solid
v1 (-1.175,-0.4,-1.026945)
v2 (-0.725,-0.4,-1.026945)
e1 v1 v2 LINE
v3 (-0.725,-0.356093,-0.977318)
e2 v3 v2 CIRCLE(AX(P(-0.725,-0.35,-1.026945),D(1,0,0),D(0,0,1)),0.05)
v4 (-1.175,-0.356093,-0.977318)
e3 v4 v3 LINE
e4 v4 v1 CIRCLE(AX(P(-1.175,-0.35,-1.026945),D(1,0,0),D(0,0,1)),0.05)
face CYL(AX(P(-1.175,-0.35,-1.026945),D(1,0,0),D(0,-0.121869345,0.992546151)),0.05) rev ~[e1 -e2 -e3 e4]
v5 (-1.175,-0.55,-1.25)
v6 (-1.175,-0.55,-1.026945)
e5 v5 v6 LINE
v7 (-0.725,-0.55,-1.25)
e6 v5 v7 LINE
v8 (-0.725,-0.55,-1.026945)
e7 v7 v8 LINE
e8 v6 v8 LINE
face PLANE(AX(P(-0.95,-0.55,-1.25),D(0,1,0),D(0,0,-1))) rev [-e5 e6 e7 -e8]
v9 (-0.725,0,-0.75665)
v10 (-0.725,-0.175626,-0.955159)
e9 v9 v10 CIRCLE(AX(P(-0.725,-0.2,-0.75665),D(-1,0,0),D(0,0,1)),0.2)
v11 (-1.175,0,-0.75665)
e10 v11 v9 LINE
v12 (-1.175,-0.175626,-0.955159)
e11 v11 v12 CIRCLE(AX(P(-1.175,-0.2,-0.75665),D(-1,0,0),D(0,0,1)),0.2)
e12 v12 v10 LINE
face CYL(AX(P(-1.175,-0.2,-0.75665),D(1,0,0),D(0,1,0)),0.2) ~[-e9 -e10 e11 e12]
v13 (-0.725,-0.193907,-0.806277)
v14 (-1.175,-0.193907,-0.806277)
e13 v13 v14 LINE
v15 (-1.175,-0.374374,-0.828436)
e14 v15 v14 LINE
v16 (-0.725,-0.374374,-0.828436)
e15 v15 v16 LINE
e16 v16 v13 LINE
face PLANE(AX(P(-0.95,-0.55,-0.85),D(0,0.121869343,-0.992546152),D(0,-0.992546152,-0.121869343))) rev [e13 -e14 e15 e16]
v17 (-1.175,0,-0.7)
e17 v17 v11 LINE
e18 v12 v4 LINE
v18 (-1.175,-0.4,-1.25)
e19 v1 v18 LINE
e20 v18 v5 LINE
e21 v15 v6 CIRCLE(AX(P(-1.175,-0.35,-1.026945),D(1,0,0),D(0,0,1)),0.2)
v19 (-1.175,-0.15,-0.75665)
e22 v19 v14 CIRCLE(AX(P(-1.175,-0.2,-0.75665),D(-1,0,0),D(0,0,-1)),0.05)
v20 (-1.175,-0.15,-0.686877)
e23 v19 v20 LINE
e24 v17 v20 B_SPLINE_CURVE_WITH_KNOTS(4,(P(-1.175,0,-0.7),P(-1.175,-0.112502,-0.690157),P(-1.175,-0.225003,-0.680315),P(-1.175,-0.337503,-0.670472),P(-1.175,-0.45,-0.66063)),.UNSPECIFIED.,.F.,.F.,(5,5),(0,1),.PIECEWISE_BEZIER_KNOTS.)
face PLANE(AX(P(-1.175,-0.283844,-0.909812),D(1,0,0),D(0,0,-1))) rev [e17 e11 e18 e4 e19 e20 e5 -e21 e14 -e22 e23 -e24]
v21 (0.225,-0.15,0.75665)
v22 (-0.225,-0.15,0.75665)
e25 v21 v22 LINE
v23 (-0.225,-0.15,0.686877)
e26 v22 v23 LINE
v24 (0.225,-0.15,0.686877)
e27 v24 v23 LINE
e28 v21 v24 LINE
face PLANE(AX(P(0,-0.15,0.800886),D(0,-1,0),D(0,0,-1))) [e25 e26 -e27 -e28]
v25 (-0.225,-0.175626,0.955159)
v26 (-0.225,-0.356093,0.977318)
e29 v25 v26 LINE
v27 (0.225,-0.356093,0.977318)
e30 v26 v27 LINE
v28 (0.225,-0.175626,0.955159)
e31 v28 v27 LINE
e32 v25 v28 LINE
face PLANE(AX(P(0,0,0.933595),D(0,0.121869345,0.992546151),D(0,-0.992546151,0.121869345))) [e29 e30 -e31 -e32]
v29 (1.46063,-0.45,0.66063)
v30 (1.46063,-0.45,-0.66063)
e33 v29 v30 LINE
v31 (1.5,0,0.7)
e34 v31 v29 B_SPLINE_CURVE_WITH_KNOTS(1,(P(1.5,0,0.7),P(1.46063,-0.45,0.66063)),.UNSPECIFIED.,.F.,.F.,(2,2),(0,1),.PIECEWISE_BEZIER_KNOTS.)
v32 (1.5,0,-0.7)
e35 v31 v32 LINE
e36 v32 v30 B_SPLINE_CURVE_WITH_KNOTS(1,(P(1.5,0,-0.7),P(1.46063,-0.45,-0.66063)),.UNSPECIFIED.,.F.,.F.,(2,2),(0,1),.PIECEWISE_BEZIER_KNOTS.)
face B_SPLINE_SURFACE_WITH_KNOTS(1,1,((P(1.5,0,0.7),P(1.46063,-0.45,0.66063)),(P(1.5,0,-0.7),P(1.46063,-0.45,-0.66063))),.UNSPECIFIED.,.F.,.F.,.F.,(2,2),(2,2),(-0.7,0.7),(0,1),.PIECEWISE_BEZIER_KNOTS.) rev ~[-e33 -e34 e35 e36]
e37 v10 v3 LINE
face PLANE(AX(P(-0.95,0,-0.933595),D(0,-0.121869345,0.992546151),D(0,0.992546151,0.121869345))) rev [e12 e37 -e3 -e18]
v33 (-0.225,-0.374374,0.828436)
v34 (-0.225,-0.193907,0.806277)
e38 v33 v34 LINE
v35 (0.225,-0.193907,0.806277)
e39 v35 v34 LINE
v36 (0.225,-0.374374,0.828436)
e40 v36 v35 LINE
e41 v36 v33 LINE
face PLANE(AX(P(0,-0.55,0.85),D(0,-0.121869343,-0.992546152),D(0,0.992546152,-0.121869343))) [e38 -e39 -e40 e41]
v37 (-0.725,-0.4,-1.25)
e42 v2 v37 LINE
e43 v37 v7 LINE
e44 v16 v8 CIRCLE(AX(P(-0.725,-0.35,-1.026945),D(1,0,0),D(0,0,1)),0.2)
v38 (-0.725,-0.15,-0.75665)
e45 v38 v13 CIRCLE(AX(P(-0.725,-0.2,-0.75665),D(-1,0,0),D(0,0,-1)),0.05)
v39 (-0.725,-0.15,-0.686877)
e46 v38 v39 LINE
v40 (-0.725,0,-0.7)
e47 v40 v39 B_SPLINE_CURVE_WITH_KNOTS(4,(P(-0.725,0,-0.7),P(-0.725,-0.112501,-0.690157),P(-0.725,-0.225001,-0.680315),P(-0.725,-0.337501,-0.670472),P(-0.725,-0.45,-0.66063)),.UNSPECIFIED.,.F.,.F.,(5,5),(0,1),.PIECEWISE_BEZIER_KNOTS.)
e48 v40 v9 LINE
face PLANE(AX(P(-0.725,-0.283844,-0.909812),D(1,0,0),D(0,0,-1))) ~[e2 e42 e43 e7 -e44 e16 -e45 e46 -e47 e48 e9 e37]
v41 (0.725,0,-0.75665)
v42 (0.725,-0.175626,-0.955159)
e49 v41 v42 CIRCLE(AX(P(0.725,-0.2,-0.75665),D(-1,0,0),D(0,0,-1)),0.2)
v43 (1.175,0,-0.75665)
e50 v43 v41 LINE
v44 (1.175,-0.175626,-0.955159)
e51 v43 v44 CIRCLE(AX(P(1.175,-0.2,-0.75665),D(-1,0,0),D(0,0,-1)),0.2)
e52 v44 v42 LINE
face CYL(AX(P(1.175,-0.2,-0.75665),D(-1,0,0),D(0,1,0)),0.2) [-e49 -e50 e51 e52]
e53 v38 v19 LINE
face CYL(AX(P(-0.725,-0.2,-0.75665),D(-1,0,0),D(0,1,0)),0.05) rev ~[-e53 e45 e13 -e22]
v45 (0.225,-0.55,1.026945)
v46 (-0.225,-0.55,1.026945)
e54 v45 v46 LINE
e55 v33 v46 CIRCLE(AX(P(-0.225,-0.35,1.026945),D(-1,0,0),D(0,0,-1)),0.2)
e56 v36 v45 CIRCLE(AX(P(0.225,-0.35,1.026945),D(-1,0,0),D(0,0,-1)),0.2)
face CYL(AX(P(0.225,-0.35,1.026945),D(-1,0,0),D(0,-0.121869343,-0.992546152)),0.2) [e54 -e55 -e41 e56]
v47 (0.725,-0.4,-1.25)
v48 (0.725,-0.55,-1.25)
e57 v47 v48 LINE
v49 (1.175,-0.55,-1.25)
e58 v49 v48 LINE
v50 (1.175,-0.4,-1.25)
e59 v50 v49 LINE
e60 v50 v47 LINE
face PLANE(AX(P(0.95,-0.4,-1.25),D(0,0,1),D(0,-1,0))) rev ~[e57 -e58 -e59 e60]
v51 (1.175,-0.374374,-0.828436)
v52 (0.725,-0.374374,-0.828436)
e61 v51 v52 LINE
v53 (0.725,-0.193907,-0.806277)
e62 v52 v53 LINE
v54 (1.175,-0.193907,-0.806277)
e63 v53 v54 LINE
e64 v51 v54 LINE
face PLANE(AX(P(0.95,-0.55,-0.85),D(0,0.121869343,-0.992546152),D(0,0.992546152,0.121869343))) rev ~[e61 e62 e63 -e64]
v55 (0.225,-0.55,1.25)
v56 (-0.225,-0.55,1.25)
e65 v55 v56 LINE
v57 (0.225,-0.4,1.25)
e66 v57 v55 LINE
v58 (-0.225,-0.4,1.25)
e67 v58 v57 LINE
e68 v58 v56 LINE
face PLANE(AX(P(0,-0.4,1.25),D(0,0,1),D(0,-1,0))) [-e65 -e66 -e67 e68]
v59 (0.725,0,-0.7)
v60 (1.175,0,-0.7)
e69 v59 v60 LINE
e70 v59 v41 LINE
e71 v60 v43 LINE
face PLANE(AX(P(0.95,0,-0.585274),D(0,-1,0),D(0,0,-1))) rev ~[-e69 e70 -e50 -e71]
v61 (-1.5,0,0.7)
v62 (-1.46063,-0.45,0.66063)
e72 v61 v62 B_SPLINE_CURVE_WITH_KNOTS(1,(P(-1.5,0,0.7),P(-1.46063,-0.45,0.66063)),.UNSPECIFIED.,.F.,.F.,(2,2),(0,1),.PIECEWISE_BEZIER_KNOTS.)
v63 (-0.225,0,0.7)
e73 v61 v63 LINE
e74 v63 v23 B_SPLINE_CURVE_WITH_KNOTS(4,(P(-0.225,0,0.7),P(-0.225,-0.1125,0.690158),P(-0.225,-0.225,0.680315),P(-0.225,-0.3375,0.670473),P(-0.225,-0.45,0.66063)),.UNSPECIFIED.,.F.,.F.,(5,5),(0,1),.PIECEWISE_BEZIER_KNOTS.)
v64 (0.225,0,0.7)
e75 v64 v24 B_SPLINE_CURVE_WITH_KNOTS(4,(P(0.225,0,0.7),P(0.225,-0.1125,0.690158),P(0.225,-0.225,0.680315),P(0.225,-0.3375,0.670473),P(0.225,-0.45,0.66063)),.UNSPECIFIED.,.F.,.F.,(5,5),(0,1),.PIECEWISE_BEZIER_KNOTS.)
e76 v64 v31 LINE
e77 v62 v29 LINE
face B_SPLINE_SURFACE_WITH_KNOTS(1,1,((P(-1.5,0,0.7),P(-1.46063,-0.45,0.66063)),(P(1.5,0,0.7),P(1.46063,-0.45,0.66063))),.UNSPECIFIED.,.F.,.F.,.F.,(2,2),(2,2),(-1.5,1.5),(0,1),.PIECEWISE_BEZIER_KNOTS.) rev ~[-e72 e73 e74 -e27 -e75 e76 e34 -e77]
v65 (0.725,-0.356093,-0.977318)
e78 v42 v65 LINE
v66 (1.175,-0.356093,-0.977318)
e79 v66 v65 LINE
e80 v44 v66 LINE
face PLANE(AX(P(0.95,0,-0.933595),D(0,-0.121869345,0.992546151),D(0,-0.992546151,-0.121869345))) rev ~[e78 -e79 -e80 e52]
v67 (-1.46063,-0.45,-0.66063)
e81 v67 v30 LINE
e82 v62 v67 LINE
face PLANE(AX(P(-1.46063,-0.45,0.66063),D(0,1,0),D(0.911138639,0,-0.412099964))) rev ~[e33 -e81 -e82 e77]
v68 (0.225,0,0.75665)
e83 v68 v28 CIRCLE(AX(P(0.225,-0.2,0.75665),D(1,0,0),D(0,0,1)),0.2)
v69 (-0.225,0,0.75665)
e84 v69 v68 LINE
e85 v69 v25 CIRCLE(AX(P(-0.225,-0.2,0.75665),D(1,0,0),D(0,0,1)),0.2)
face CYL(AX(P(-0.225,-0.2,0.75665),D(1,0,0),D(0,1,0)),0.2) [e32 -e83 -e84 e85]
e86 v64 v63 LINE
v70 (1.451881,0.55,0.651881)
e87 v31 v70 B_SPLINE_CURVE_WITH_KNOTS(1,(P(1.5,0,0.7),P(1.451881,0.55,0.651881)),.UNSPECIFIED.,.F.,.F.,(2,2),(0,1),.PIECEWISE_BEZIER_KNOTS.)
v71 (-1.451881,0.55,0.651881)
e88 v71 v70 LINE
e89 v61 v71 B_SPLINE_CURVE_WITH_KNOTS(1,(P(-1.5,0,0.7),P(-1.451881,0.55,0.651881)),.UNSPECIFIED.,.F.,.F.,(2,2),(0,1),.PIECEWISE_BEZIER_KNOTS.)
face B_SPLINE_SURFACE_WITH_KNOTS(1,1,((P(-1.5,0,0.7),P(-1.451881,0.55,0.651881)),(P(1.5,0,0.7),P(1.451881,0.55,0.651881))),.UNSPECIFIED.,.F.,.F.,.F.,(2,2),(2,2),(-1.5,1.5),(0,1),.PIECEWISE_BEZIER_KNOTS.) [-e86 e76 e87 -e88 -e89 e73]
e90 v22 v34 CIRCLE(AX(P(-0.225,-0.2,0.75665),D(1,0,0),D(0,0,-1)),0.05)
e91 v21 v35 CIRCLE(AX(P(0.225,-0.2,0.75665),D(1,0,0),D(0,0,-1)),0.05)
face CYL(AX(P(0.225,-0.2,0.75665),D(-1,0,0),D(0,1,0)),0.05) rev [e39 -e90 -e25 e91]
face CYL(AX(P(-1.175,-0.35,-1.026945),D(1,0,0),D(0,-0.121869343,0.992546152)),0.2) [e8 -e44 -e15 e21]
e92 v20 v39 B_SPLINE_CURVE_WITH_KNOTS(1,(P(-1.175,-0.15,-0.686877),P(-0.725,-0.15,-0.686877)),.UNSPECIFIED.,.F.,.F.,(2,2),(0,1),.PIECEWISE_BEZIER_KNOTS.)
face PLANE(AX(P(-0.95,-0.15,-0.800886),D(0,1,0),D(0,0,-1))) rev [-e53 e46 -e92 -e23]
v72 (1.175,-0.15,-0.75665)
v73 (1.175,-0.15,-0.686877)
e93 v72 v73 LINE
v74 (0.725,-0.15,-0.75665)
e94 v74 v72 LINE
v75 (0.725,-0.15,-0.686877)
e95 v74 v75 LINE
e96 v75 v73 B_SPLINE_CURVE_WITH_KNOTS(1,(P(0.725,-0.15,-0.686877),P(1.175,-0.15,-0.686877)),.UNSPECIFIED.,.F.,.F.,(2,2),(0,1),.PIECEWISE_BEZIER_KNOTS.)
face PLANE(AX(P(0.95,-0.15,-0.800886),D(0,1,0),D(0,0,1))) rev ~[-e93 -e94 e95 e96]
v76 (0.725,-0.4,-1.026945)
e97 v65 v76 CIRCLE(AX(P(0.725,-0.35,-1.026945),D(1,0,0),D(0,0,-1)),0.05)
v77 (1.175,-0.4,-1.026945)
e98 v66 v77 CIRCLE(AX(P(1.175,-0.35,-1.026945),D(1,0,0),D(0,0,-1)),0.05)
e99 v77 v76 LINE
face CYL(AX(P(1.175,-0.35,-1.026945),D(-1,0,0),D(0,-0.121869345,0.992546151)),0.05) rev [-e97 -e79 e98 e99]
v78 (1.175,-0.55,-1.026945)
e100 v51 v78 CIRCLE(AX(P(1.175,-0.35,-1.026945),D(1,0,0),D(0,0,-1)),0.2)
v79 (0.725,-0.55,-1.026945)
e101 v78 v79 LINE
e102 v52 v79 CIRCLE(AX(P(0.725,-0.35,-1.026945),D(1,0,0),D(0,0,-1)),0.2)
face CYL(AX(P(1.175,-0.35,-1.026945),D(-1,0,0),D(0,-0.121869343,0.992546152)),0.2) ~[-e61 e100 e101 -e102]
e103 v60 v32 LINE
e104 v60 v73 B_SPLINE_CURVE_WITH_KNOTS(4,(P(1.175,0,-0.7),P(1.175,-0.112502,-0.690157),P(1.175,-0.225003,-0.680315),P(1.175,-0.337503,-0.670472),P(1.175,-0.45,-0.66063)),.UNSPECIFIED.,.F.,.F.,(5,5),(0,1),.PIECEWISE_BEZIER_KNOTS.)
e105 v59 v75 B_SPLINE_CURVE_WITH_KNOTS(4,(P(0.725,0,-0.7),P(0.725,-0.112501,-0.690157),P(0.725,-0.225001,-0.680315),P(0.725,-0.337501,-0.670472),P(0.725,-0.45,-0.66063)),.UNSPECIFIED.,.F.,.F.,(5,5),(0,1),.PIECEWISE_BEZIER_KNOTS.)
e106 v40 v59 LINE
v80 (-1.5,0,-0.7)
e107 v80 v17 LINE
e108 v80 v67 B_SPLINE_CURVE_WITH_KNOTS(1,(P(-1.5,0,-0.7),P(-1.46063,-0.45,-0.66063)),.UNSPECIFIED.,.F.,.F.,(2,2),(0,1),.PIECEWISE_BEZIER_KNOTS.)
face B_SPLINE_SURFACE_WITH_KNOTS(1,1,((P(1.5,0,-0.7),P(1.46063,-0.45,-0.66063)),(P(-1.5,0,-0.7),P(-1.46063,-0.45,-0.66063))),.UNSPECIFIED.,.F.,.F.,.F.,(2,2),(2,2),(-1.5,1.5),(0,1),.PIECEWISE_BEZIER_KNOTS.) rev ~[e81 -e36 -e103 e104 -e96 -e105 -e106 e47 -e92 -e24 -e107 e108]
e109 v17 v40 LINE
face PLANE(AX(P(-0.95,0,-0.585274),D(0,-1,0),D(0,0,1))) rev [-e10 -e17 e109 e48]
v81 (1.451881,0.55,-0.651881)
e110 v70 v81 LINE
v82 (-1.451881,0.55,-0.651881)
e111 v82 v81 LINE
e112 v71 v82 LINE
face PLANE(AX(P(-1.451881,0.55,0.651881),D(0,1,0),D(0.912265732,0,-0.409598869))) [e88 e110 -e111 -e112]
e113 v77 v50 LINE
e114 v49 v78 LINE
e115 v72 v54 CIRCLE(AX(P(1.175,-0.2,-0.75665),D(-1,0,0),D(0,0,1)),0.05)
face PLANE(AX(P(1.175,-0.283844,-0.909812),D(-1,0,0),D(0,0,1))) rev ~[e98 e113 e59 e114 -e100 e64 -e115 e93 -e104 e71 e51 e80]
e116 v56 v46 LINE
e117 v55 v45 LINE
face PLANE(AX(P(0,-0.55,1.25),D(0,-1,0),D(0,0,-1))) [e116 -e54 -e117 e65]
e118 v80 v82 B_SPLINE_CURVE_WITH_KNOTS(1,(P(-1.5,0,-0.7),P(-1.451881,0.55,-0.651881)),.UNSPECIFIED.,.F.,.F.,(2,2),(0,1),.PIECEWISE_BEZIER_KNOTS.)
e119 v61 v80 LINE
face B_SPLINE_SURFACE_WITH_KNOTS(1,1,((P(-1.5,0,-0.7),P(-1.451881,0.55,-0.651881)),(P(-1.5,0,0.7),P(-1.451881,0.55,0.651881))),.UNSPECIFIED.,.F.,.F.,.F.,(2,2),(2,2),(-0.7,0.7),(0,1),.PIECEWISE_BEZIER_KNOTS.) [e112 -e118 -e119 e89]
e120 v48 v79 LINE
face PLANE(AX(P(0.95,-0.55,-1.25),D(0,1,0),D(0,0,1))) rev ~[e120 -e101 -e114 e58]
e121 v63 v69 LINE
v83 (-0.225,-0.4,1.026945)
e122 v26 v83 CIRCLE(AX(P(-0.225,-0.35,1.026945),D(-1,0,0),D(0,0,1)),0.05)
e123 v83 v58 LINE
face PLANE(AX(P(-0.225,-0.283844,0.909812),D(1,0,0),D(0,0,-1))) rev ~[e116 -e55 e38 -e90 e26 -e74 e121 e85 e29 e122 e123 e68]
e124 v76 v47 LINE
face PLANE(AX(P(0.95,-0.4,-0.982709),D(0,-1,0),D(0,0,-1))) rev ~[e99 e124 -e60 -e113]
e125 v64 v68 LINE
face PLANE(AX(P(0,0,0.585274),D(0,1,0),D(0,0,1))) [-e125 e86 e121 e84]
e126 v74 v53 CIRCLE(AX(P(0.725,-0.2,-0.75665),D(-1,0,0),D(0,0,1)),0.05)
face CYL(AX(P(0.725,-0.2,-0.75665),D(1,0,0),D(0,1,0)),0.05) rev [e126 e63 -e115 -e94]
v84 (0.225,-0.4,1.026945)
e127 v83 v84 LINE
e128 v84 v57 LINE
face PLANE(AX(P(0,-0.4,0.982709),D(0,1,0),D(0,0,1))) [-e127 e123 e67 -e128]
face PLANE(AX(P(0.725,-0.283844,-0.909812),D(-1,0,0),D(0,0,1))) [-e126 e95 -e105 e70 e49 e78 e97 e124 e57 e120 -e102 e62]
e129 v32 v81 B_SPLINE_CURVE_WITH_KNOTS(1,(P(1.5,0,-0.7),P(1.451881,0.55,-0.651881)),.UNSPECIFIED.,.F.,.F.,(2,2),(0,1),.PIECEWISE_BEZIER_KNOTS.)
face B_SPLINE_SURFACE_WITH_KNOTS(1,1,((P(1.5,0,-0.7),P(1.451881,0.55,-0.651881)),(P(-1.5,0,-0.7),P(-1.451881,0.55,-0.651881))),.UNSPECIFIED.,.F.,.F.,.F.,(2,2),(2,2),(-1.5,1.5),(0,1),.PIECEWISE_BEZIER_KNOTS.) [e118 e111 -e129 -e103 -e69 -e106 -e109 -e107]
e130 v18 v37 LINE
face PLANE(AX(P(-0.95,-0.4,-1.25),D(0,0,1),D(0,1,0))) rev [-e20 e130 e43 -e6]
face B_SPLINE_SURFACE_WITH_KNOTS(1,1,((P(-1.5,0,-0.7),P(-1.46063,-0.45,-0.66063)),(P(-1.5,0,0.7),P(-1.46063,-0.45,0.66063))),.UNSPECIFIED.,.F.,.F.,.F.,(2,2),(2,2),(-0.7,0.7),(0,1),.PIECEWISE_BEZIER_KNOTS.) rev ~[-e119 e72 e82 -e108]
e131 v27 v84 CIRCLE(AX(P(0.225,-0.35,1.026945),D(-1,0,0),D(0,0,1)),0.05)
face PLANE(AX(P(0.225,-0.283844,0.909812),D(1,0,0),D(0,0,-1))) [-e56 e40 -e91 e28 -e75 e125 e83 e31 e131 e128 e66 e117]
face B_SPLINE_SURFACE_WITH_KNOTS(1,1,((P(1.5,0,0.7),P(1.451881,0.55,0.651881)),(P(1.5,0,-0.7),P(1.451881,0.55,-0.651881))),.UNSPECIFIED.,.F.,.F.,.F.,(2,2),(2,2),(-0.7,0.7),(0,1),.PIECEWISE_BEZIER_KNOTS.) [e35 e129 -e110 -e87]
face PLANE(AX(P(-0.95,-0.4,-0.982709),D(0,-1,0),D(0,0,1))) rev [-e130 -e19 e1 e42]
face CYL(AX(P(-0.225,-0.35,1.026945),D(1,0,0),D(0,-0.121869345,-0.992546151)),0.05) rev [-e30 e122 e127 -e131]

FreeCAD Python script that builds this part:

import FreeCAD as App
import Part
import Sketcher
from FreeCAD import Vector
Q = App.Units.Quantity


def edges_at(feature, points):
    """Names of the edges that pass closest to the given points."""
    edges = feature.Shape.Edges
    near = lambda p: min(range(len(edges)), key=lambda i: edges[i].distToShape(Part.Vertex(*p))[0])
    return sorted({f"Edge{near(p) + 1}" for p in points})


def add_polygon(sketch, points):
    """Adds a closed chain of lines whose ends are joined by coincident constraints."""
    first, n = sketch.GeometryCount, len(points)
    for a, b in zip(points, points[1:] + points[:1]):
        sketch.addGeometry(Part.LineSegment(App.Vector(*a, 0), App.Vector(*b, 0)), False)
    for i in range(n):
        sketch.addConstraint(Sketcher.Constraint("Coincident", first + i, 2, first + (i + 1) % n, 1))

doc = App.newDocument("Part")
body = doc.addObject("PartDesign::Body", "Body")

sketch1 = body.newObject("Sketcher::SketchObject", "Sketch")
sketch1.AttachmentSupport = (doc.getObject("XZ_Plane"), [""])
sketch1.MapMode = "FlatFace"
add_polygon(sketch1, [(-1.5, -0.7), (-1.5, 0.7), (1.5, 0.7), (1.5, -0.7)])
sketch1.addConstraint(Sketcher.Constraint("Vertical", 0))
sketch1.addConstraint(Sketcher.Constraint("Horizontal", 1))
sketch1.addConstraint(Sketcher.Constraint("Vertical", 2))
sketch1.addConstraint(Sketcher.Constraint("Horizontal", 3))
sketch1.addConstraint(Sketcher.Constraint("Symmetric", 0, 2, 2, 2, -1, 1))
sketch1.addConstraint(Sketcher.Constraint("DistanceX", 1, 1, 1, 2, 3.0))
sketch1.addConstraint(Sketcher.Constraint("DistanceY", 0, 1, 0, 2, 1.4))
pad1 = body.newObject("PartDesign::Pad", "Pad")
pad1.Profile = sketch1
pad1.Length = 0.55
pad1.Reversed = True
pad1.TaperAngle = -5

sketch2 = body.newObject("Sketcher::SketchObject", "Sketch001")
sketch2.AttachmentSupport = (doc.getObject("XZ_Plane"), [""])
sketch2.MapMode = "FlatFace"
add_polygon(sketch2, [(-1.5, -0.7), (-1.5, 0.7), (1.5, 0.7), (1.5, -0.7)])
sketch2.addConstraint(Sketcher.Constraint("Vertical", 0))
sketch2.addConstraint(Sketcher.Constraint("Horizontal", 1))
sketch2.addConstraint(Sketcher.Constraint("Vertical", 2))
sketch2.addConstraint(Sketcher.Constraint("Horizontal", 3))
sketch2.addConstraint(Sketcher.Constraint("Symmetric", 0, 2, 2, 2, -1, 1))
sketch2.addConstraint(Sketcher.Constraint("DistanceX", 1, 1, 1, 2, 3.0))
sketch2.addConstraint(Sketcher.Constraint("DistanceY", 0, 1, 0, 2, 1.4))
pad2 = body.newObject("PartDesign::Pad", "Pad001")
pad2.Profile = sketch2
pad2.Length = 0.45
pad2.TaperAngle = -5

sketch3 = body.newObject("Sketcher::SketchObject", "Sketch002")
sketch3.AttachmentSupport = (doc.getObject("YZ_Plane"), [""])
sketch3.MapMode = "FlatFace"
add_polygon(sketch3, [(0, 0.585274), (0, 0.933595), (-0.4, 0.982709), (-0.4, 1.25), (-0.55, 1.25), (-0.55, 0.85), (-0.15, 0.800886), (-0.15, 0.585274)])
sketch3.addConstraint(Sketcher.Constraint("Vertical", 0))
sketch3.addConstraint(Sketcher.Constraint("Vertical", 2))
sketch3.addConstraint(Sketcher.Constraint("Horizontal", 3))
sketch3.addConstraint(Sketcher.Constraint("Vertical", 4))
sketch3.addConstraint(Sketcher.Constraint("Vertical", 6))
sketch3.addConstraint(Sketcher.Constraint("Horizontal", 7))
sketch3.addConstraint(Sketcher.Constraint("PointOnObject", 0, 2, -2))
sketch3.addConstraint(Sketcher.Constraint("Parallel", 1, 5))
sketch3.addConstraint(Sketcher.Constraint("Equal", 3, 7))
sketch3.addConstraint(Sketcher.Constraint("Angle", 1, Q("173 deg")))
sketch3.addConstraint(Sketcher.Constraint("DistanceY", 4, 2, 4, 1, 0.4))
sketch3.addConstraint(Sketcher.Constraint("DistanceX", 3, 2, 3, 1, 0.15))
sketch3.addConstraint(Sketcher.Constraint("DistanceX", 1, 2, -1, 1, 0.4))
sketch3.addConstraint(Sketcher.Constraint("DistanceY", -1, 1, 2, 2, 1.25))
sketch3.addConstraint(Sketcher.Constraint("DistanceY", 0, 1, 0, 2, 0.348321))
sketch3.addConstraint(Sketcher.Constraint("DistanceY", 2, 1, 2, 2, 0.267291))
pad3 = body.newObject("PartDesign::Pad", "Pad002")
pad3.Profile = sketch3
pad3.Type = "TwoLengths"
pad3.Length = 0.225
pad3.Length2 = 0.225

sketch4 = body.newObject("Sketcher::SketchObject", "Sketch003")
sketch4.AttachmentSupport = (doc.getObject("YZ_Plane"), [""])
sketch4.MapMode = "FlatFace"
sketch4.AttachmentOffset = App.Placement(Vector(0, 0, 0.95), App.Rotation())
add_polygon(sketch4, [(0, -0.933595), (0, -0.585274), (-0.15, -0.585274), (-0.15, -0.800886), (-0.55, -0.85), (-0.55, -1.25), (-0.4, -1.25), (-0.4, -0.982709)])
sketch4.addConstraint(Sketcher.Constraint("Vertical", 0))
sketch4.addConstraint(Sketcher.Constraint("Horizontal", 1))
sketch4.addConstraint(Sketcher.Constraint("Vertical", 2))
sketch4.addConstraint(Sketcher.Constraint("Vertical", 4))
sketch4.addConstraint(Sketcher.Constraint("Horizontal", 5))
sketch4.addConstraint(Sketcher.Constraint("Vertical", 6))
sketch4.addConstraint(Sketcher.Constraint("PointOnObject", 0, 2, -2))
sketch4.addConstraint(Sketcher.Constraint("Parallel", 3, 7))
sketch4.addConstraint(Sketcher.Constraint("Equal", 1, 5))
sketch4.addConstraint(Sketcher.Constraint("Angle", 3, Q("-173 deg")))
sketch4.addConstraint(Sketcher.Constraint("DistanceY", 4, 2, 4, 1, 0.4))
sketch4.addConstraint(Sketcher.Constraint("DistanceX", 1, 2, 1, 1, 0.15))
sketch4.addConstraint(Sketcher.Constraint("DistanceX", 5, 2, -1, 1, 0.4))
sketch4.addConstraint(Sketcher.Constraint("DistanceY", 3, 2, -1, 1, 0.85))
sketch4.addConstraint(Sketcher.Constraint("DistanceY", 0, 1, 0, 2, 0.348321))
sketch4.addConstraint(Sketcher.Constraint("DistanceY", 6, 1, 6, 2, 0.267291))
pad4 = body.newObject("PartDesign::Pad", "Pad003")
pad4.Profile = sketch4
pad4.Length = 0.45
pad4.Midplane = True
doc.recompute()

mirrored = body.newObject("PartDesign::Mirrored", "Mirrored")
mirrored.Originals = [pad4]
mirrored.MirrorPlane = (doc.getObject("YZ_Plane"), [""])
body.Tip = mirrored
doc.recompute()

fillet = body.newObject("PartDesign::Fillet", "Fillet")
fillet.Base = (mirrored, edges_at(mirrored, [
    (0, -0.4, 0.983),
    (0, -0.15, 0.801),
    (0.95, -0.15, -0.801),
    (0.95, -0.4, -0.983),
    (-0.95, -0.4, -0.983),
    (-0.95, -0.15, -0.801),
]))
fillet.Radius = 0.05
doc.recompute()

fillet2 = body.newObject("PartDesign::Fillet", "Fillet001")
fillet2.Base = (fillet, edges_at(fillet, [
    (0, 0, 0.934),
    (0, -0.55, 0.85),
    (0.95, 0, -0.934),
    (0.95, -0.55, -0.85),
    (-0.95, 0, -0.934),
    (-0.95, -0.55, -0.85),
]))
fillet2.Radius = 0.2

doc.recompute()
